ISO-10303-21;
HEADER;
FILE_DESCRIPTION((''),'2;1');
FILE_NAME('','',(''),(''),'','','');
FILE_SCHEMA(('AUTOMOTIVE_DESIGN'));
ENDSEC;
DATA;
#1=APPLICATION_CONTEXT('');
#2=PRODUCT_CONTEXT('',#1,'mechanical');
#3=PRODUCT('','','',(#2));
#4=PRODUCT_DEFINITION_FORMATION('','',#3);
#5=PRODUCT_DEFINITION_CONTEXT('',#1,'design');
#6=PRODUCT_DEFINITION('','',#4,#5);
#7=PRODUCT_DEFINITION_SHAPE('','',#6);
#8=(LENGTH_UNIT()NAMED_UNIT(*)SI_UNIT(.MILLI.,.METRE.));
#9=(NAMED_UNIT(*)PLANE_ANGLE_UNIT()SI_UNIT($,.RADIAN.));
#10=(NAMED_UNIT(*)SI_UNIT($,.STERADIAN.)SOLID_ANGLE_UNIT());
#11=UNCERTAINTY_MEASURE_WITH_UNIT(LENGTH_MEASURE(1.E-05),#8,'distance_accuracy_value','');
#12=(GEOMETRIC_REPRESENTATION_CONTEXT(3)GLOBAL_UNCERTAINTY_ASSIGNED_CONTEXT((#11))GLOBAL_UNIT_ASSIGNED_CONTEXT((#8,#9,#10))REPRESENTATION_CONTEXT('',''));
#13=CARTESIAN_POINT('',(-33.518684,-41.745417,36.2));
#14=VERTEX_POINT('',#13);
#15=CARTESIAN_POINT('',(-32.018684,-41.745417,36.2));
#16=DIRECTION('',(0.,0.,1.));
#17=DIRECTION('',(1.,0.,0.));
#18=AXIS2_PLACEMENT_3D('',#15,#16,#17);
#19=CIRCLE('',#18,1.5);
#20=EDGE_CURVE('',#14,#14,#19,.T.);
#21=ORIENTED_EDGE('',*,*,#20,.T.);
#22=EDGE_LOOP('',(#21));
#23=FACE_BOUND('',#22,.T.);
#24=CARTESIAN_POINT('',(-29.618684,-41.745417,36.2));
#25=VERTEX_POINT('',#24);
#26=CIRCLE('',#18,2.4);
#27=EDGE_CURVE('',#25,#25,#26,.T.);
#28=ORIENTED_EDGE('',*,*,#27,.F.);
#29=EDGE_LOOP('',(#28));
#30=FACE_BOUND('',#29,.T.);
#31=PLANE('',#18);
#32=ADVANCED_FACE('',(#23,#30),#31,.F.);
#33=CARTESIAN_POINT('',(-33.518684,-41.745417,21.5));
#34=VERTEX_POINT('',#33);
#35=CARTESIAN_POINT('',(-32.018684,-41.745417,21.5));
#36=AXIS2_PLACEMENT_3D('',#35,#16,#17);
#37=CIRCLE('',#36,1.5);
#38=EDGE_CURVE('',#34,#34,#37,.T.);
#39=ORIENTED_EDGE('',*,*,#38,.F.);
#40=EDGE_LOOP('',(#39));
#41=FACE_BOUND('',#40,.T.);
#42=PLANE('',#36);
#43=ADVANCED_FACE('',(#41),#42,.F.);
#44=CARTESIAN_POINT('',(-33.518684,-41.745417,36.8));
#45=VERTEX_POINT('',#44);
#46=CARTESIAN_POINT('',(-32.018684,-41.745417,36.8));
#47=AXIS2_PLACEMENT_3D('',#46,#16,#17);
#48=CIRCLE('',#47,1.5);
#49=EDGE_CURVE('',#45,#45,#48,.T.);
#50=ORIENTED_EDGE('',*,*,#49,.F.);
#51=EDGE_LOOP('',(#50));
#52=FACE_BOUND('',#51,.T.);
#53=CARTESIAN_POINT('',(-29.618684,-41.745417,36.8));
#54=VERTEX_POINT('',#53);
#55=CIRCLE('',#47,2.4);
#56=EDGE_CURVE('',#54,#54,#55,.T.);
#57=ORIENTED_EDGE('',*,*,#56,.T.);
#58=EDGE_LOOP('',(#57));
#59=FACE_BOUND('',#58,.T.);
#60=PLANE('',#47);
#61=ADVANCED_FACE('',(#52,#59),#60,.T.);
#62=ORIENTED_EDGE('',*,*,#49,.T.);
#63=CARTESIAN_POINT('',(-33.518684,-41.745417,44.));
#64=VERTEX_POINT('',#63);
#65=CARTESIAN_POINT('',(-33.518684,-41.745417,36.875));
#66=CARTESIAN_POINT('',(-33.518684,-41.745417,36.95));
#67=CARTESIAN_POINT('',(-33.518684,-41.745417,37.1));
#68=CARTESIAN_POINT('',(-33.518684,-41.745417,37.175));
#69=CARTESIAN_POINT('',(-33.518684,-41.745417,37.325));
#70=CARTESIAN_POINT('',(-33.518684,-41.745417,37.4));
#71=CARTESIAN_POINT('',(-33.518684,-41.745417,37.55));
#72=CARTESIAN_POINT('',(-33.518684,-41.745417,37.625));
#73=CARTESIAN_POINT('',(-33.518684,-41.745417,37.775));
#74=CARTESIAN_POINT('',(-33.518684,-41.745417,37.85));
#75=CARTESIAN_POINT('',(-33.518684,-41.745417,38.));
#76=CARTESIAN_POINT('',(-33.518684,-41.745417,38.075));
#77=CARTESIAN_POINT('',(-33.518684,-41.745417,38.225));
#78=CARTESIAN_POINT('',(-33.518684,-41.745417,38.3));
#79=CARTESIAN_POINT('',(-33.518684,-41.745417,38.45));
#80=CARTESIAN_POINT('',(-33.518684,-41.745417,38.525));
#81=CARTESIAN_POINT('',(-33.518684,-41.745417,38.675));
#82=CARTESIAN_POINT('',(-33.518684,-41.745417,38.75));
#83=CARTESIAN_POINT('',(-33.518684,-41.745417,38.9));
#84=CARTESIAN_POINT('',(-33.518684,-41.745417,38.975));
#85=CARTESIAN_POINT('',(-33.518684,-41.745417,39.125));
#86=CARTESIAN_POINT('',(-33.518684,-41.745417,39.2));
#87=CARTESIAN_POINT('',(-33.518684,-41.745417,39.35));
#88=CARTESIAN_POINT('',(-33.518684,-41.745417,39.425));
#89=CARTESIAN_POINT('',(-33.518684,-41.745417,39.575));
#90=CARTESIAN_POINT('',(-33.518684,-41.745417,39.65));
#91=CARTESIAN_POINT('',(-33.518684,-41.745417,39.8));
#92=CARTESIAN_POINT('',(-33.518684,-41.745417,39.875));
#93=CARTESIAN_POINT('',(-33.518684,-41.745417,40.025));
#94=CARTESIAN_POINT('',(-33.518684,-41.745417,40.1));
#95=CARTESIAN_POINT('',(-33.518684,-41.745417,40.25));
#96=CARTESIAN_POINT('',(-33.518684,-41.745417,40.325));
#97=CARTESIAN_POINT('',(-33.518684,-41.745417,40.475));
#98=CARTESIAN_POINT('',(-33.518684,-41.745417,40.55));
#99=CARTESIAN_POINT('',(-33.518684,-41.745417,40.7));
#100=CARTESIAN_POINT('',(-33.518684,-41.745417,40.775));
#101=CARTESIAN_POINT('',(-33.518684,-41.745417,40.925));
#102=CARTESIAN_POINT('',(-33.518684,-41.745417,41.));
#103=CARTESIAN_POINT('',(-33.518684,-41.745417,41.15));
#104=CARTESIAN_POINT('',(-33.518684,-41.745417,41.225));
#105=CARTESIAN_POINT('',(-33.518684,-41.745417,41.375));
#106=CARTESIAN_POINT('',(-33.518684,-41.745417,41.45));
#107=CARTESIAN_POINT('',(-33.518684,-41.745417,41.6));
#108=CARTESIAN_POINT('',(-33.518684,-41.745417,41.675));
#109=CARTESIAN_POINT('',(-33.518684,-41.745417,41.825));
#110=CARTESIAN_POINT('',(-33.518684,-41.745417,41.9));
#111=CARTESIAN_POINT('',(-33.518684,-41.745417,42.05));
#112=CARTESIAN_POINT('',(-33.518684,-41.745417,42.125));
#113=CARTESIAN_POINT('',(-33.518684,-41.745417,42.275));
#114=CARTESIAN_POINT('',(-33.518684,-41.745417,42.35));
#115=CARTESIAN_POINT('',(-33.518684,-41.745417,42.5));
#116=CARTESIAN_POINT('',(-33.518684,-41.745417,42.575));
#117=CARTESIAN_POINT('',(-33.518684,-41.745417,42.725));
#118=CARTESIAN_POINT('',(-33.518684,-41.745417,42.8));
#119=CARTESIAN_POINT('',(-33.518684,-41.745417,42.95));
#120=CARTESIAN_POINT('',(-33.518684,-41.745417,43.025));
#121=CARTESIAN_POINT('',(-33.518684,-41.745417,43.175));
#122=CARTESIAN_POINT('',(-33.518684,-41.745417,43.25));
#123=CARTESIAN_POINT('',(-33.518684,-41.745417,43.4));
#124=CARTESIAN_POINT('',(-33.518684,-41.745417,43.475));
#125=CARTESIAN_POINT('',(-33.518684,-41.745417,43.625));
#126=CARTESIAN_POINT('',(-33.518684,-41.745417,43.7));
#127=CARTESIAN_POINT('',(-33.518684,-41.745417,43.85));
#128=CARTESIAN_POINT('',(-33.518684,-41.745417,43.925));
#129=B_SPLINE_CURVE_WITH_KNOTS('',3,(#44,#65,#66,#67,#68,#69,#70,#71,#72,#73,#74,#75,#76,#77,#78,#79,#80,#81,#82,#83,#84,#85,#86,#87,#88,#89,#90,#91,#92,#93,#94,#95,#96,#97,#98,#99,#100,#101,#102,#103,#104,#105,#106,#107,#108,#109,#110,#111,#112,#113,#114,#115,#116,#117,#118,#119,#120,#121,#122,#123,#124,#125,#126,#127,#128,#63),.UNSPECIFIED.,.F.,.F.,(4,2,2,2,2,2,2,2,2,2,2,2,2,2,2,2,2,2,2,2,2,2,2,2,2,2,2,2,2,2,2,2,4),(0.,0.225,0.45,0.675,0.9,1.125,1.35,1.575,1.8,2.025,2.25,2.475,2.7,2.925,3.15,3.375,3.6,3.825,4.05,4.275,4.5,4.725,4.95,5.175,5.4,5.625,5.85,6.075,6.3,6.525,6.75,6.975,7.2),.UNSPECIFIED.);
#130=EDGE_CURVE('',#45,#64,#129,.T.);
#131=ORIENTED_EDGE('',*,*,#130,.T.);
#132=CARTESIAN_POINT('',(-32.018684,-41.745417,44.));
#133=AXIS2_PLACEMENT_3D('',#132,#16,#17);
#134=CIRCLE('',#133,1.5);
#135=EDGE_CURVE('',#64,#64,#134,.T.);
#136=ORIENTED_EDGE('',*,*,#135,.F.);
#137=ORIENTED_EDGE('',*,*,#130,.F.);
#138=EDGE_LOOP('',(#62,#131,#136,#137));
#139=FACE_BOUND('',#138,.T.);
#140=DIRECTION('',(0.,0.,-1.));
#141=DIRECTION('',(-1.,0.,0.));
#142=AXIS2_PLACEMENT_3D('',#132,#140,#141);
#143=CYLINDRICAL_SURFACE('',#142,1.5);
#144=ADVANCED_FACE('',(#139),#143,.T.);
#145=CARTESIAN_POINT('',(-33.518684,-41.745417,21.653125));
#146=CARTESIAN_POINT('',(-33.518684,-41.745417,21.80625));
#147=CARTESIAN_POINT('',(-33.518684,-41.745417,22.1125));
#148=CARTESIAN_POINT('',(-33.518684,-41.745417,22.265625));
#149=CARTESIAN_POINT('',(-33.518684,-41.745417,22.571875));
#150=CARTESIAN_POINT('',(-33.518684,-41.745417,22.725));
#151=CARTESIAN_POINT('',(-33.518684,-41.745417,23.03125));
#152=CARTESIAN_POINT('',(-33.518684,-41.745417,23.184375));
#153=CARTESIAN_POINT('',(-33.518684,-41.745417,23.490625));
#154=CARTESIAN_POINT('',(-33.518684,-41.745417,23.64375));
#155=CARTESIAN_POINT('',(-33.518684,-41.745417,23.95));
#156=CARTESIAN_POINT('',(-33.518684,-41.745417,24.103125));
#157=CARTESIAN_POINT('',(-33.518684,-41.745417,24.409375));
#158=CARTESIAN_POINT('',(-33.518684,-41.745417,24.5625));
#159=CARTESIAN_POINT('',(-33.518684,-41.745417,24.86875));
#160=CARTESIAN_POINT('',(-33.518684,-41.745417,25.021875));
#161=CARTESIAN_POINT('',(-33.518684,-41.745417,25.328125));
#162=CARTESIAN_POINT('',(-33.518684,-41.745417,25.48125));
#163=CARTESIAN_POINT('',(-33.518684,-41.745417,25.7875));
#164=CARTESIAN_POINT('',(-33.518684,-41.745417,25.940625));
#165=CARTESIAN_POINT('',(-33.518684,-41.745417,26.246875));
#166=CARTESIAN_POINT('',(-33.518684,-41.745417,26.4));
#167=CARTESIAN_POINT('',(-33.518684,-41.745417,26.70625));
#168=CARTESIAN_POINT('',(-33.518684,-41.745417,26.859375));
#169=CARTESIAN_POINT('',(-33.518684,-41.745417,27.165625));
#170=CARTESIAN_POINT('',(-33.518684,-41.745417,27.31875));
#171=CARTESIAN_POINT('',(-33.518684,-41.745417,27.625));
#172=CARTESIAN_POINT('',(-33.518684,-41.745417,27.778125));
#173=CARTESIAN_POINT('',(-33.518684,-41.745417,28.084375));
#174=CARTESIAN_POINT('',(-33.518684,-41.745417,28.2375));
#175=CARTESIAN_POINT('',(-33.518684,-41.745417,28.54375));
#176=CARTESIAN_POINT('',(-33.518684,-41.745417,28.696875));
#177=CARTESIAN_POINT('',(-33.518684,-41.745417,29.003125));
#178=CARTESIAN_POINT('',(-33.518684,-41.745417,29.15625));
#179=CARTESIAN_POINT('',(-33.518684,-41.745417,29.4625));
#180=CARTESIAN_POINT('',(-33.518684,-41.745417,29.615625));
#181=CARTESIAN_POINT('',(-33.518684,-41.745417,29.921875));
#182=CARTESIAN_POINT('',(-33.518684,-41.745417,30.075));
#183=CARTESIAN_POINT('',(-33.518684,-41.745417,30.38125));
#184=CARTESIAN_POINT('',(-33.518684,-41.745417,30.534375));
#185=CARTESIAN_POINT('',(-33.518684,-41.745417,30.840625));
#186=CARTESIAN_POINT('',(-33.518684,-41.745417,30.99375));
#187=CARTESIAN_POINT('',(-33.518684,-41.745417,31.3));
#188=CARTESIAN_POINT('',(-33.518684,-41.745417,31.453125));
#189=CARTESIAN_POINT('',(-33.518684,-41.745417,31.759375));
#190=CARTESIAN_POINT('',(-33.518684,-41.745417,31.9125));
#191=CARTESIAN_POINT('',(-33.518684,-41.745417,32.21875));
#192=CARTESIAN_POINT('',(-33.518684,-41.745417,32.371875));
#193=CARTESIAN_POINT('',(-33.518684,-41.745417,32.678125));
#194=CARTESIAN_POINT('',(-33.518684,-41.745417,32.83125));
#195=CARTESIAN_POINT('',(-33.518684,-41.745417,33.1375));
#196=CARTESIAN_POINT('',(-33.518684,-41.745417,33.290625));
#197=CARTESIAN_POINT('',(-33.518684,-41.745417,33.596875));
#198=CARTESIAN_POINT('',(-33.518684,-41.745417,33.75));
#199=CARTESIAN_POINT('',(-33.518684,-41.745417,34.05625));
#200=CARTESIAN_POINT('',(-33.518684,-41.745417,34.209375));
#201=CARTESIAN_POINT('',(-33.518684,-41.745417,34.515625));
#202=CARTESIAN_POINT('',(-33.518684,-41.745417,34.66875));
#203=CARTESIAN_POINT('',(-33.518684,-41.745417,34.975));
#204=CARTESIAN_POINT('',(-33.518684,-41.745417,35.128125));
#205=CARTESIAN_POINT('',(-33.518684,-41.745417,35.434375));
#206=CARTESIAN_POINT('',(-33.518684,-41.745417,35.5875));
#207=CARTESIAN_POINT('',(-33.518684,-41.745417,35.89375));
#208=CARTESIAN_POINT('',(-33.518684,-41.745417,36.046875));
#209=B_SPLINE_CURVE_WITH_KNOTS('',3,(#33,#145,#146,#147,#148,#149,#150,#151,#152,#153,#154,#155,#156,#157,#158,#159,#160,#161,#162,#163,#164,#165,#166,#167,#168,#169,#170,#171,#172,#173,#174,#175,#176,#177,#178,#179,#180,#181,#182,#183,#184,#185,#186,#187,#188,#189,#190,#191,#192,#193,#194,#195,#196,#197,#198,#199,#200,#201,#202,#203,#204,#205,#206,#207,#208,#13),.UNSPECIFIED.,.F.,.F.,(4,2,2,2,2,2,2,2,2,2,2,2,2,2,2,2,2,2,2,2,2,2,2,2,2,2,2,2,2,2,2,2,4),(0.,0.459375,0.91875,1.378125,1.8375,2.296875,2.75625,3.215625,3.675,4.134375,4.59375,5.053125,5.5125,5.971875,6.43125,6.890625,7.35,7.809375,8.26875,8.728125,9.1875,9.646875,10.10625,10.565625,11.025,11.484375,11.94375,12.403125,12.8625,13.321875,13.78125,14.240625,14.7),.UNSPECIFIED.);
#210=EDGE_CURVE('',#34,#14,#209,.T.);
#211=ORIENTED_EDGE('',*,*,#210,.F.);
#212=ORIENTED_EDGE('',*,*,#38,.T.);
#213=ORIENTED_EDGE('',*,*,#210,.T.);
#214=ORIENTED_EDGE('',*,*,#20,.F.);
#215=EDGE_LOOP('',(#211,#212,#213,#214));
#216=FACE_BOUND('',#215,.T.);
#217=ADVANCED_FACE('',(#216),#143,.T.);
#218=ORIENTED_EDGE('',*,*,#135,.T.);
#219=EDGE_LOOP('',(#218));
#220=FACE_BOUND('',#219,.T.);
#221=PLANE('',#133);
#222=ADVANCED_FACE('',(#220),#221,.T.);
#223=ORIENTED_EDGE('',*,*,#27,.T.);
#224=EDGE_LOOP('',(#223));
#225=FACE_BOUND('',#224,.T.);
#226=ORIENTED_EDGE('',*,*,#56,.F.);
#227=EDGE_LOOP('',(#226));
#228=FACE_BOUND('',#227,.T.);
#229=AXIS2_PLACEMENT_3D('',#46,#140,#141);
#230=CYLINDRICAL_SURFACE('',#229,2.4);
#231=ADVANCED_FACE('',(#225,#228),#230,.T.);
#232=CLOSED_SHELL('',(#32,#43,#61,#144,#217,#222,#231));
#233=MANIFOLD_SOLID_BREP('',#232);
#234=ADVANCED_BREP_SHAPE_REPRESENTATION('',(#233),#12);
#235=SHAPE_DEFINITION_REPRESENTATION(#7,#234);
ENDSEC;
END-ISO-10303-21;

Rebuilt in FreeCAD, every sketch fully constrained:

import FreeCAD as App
import Part
import Sketcher

doc = App.newDocument("Part")
body = doc.addObject("PartDesign::Body", "Body")

sketch1 = body.newObject("Sketcher::SketchObject", "Sketch")
sketch1.AttachmentSupport = (doc.getObject("XY_Plane"), [""])
sketch1.MapMode = "FlatFace"
sketch1.AttachmentOffset = App.Placement(App.Vector(0, 0, 21.5), App.Rotation())
sketch1.addGeometry(Part.Circle(App.Vector(-32, -41.7, 0), App.Vector(0, 0, 1), 1.5), False)
sketch1.addConstraint([
    Sketcher.Constraint("Diameter", 0, 3.0),
    Sketcher.Constraint("DistanceX", 0, 3, -1, 1, 32.018684),
    Sketcher.Constraint("DistanceY", 0, 3, -1, 1, 41.745417),
])
pad1 = body.newObject("PartDesign::Pad", "Pad")
pad1.Profile = sketch1
pad1.Length = 22.5

sketch2 = body.newObject("Sketcher::SketchObject", "Sketch001")
sketch2.AttachmentSupport = (doc.getObject("XY_Plane"), [""])
sketch2.MapMode = "FlatFace"
sketch2.AttachmentOffset = App.Placement(App.Vector(0, 0, 36.2), App.Rotation())
sketch2.addGeometry(Part.Circle(App.Vector(-32, -41.7, 0), App.Vector(0, 0, 1), 2.4), False)
sketch2.addConstraint([
    Sketcher.Constraint("Diameter", 0, 4.8),
    Sketcher.Constraint("DistanceX", 0, 3, -1, 1, 32.018684),
    Sketcher.Constraint("DistanceY", 0, 3, -1, 1, 41.745417),
])
pad2 = body.newObject("PartDesign::Pad", "Pad001")
pad2.Profile = sketch2
pad2.Length = 0.6

doc.recompute()
